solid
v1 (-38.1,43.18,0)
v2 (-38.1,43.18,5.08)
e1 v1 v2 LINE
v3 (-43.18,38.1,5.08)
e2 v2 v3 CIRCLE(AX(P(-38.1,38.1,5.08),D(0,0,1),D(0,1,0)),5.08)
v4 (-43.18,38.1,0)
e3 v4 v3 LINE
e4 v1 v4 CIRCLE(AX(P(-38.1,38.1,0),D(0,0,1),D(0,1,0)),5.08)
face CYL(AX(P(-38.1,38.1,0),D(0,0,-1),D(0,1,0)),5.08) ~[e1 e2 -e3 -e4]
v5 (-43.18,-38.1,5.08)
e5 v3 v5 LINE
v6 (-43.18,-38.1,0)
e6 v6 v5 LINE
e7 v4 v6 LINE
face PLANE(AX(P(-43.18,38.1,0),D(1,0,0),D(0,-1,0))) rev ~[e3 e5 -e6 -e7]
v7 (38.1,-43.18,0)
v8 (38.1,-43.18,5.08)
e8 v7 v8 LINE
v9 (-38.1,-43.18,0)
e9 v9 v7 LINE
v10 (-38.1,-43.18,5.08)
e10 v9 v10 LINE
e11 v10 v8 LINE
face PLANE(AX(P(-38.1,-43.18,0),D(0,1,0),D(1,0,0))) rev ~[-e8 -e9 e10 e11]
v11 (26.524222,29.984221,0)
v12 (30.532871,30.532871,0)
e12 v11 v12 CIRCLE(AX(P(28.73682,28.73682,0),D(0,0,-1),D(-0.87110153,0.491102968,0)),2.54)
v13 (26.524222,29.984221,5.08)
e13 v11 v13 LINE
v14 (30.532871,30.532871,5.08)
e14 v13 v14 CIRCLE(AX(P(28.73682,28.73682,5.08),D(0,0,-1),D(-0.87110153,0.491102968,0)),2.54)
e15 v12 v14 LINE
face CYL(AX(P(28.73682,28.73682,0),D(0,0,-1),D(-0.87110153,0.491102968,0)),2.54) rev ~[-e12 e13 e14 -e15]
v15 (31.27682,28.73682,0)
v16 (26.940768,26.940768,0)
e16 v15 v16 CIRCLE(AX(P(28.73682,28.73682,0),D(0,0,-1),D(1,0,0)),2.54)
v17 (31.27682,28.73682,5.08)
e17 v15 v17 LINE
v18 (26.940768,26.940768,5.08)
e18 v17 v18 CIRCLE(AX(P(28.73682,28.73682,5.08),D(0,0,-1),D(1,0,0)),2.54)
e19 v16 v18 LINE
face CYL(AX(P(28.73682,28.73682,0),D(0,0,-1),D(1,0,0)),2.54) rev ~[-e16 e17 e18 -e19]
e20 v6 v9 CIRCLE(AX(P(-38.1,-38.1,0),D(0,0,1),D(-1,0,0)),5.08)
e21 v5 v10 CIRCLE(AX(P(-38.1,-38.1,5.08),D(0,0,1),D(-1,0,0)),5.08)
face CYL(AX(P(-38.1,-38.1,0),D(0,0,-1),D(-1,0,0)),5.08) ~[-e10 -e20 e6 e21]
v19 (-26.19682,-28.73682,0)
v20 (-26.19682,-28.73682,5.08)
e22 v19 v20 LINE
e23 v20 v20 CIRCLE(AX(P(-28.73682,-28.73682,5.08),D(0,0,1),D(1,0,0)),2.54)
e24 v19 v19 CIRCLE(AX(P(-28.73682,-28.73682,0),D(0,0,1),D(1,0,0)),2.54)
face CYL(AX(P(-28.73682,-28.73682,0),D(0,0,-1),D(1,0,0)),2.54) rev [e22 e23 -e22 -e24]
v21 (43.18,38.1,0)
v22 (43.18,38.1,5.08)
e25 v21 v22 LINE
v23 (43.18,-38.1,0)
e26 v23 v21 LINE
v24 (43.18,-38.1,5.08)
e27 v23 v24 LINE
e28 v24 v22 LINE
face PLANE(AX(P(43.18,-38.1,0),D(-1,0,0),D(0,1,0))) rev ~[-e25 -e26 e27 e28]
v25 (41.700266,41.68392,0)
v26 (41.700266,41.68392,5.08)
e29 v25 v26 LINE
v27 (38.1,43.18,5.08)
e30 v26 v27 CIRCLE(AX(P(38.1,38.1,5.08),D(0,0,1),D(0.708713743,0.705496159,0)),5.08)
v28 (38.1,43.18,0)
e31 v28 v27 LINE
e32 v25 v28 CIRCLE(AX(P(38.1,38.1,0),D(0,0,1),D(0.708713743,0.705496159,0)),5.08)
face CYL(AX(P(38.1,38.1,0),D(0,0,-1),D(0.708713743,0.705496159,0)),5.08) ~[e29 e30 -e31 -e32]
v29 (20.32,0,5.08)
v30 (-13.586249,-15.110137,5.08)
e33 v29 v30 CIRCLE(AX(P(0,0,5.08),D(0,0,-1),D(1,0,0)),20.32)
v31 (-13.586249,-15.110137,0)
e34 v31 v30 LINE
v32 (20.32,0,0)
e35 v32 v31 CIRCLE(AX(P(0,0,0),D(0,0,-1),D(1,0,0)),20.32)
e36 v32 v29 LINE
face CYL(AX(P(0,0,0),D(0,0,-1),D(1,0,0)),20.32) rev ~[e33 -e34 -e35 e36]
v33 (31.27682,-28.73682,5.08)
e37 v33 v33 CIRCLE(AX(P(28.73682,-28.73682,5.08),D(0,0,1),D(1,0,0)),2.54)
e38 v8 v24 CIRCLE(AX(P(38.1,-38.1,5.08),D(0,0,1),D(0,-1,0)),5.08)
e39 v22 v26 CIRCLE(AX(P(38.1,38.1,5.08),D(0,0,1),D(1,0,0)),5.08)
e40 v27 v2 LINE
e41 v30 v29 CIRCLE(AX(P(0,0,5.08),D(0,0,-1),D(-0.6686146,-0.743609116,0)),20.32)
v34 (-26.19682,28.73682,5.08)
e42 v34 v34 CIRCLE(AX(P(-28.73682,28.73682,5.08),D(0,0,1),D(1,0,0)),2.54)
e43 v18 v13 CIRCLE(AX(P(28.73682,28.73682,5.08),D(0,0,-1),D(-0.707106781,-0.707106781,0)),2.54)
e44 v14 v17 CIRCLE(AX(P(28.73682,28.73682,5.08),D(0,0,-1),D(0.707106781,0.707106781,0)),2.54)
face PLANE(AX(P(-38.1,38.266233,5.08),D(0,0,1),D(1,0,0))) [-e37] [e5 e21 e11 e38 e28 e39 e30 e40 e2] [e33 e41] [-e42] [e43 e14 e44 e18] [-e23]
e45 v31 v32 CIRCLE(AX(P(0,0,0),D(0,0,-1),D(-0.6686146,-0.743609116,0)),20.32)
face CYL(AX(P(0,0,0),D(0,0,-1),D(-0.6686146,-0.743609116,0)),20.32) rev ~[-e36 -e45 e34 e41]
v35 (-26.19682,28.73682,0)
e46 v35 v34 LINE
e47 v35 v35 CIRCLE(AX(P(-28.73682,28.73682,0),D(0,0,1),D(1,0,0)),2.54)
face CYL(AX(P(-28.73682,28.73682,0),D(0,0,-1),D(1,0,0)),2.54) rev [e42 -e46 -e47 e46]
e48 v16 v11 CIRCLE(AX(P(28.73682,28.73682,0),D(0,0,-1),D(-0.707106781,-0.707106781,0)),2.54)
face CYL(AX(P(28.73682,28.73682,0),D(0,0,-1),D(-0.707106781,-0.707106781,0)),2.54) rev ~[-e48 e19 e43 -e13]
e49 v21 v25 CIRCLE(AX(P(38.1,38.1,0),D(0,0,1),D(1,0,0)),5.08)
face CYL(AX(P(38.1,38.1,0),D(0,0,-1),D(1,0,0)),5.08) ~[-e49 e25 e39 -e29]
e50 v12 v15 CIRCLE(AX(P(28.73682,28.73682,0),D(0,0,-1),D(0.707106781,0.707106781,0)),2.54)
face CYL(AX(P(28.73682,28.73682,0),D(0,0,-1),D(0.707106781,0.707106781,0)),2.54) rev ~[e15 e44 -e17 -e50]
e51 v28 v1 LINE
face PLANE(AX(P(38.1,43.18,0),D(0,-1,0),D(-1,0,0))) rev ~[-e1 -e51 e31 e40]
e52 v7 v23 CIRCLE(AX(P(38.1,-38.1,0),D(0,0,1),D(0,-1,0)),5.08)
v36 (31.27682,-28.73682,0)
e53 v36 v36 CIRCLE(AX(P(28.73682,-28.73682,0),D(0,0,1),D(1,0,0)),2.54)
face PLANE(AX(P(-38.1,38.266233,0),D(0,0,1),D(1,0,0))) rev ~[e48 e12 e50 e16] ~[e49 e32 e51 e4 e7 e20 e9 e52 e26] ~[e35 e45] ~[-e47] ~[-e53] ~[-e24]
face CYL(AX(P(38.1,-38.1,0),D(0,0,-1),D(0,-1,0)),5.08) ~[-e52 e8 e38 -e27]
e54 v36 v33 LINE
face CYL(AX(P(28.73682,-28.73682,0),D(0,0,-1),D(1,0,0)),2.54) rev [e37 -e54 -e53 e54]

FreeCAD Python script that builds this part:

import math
import FreeCAD as App
import Part
import Sketcher

V = App.Vector
Q = App.Units.Quantity

doc = App.newDocument("Part")
body = doc.addObject("PartDesign::Body", "Body")

# Sketch on XY plane
sketch1 = body.newObject("Sketcher::SketchObject", "Sketch")
sketch1.AttachmentSupport = (doc.getObject("XY_Plane"), [""])
sketch1.MapMode = "FlatFace"
sketch1.addGeometry([
    Part.ArcOfCircle(Part.Circle(V(-38.1, 38.1, 0), V(0, 0, 1), 5.1), math.radians(90), math.radians(180)),  # 0
    Part.LineSegment(V(-43.2, 38.1, 0), V(-43.2, -38.1, 0)),  # 1
    Part.ArcOfCircle(Part.Circle(V(-38.1, -38.1, 0), V(0, 0, 1), 5.1), math.radians(180), math.radians(270)),  # 2
    Part.LineSegment(V(-38.1, -43.2, 0), V(38.1, -43.2, 0)),  # 3
    Part.ArcOfCircle(Part.Circle(V(38.1, -38.1, 0), V(0, 0, 1), 5.1), math.radians(-90), math.radians(0)),  # 4
    Part.LineSegment(V(43.2, -38.1, 0), V(43.2, 38.1, 0)),  # 5
    Part.ArcOfCircle(Part.Circle(V(38.1, 38.1, 0), V(0, 0, 1), 5.1), math.radians(0), math.radians(45)),  # 6
    Part.ArcOfCircle(Part.Circle(V(38.1, 38.1, 0), V(0, 0, 1), 5.1), math.radians(45), math.radians(90)),  # 7
    Part.LineSegment(V(38.1, 43.2, 0), V(-38.1, 43.2, 0)),  # 8
    Part.Circle(V(-28.7, -28.7, 0), V(0, 0, 1), 2.5),  # 9
    Part.Circle(V(28.7, -28.7, 0), V(0, 0, 1), 2.5),  # 10
    Part.Circle(V(-28.7, 28.7, 0), V(0, 0, 1), 2.5),  # 11
    Part.ArcOfCircle(Part.Circle(V(0, 0, 0), V(0, 0, 1), 20.3), math.radians(-132), math.radians(0)),  # 12
    Part.ArcOfCircle(Part.Circle(V(0, 0, 0), V(0, 0, 1), 20.3), math.radians(0), math.radians(228)),  # 13
    Part.ArcOfCircle(Part.Circle(V(28.7, 28.7, 0), V(0, 0, 1), 2.5), math.radians(0), math.radians(45)),  # 14
    Part.ArcOfCircle(Part.Circle(V(28.7, 28.7, 0), V(0, 0, 1), 2.5), math.radians(-135), math.radians(0)),  # 15
    Part.ArcOfCircle(Part.Circle(V(28.7, 28.7, 0), V(0, 0, 1), 2.5), math.radians(151), math.radians(225)),  # 16
    Part.ArcOfCircle(Part.Circle(V(28.7, 28.7, 0), V(0, 0, 1), 2.5), math.radians(45), math.radians(151)),  # 17
], False)
sketch1.addConstraint([
    Sketcher.Constraint("Tangent", 0, 2, 1, 1),
    Sketcher.Constraint("Tangent", 1, 2, 2, 1),
    Sketcher.Constraint("Tangent", 2, 2, 3, 1),
    Sketcher.Constraint("Tangent", 3, 2, 4, 1),
    Sketcher.Constraint("Tangent", 4, 2, 5, 1),
    Sketcher.Constraint("Tangent", 5, 2, 6, 1),
    Sketcher.Constraint("Tangent", 6, 2, 7, 1),
    Sketcher.Constraint("Tangent", 7, 2, 8, 1),
    Sketcher.Constraint("Tangent", 8, 2, 0, 1),
    Sketcher.Constraint("Tangent", 12, 1, 13, 2),
    Sketcher.Constraint("Coincident", 13, 1, 12, 2),
    Sketcher.Constraint("Tangent", 14, 1, 15, 2),
    Sketcher.Constraint("Tangent", 15, 1, 16, 2),
    Sketcher.Constraint("Tangent", 16, 1, 17, 2),
    Sketcher.Constraint("Tangent", 17, 1, 14, 2),
    Sketcher.Constraint("Vertical", 1),
    Sketcher.Constraint("Horizontal", 3),
    Sketcher.Constraint("Vertical", 5),
    Sketcher.Constraint("Horizontal", 8),
    Sketcher.Constraint("Coincident", 12, 3, -1, 1),
    Sketcher.Constraint("Equal", 0, 2),
    Sketcher.Constraint("Equal", 2, 4),
    Sketcher.Constraint("Equal", 4, 6),
    Sketcher.Constraint("Equal", 6, 7),
    Sketcher.Constraint("Equal", 9, 10),
    Sketcher.Constraint("Equal", 10, 11),
    Sketcher.Constraint("Equal", 11, 14),
    Sketcher.Constraint("Equal", 14, 15),
    Sketcher.Constraint("Symmetric", 0, 3, 4, 3, -1, 1),
    Sketcher.Constraint("Symmetric", 10, 3, 11, 3, -1, 1),
    Sketcher.Constraint("Symmetric", 9, 3, 14, 3, -1, 1),
    Sketcher.Constraint("Symmetric", 9, 3, 10, 3, -2),
    Sketcher.Constraint("PointOnObject", 13, 1, -1),
    Sketcher.Constraint("Horizontal", 17, 3, 14, 1),
    Sketcher.Constraint("Equal", 8, 1),
    Sketcher.Constraint("Diameter", 9, Q("0.2 in")),
    Sketcher.Constraint("Radius", 0, Q("0.2 in")),
    Sketcher.Constraint("Radius", 12, Q("0.8 in")),
    Sketcher.Constraint("DistanceX", 3, 1, 3, 2, Q("3 in")),
    Sketcher.Constraint("DistanceY", 14, 3, 6, 2, Q("12.947101 mm")),
    Sketcher.Constraint("DistanceY", 15, 3, 16, 1, Q("1.247402 mm")),
    Sketcher.Constraint("DistanceX", 9, 3, -1, 1, Q("28.73682 mm")),
    Sketcher.Constraint("DistanceY", 9, 3, -1, 1, Q("28.73682 mm")),
    Sketcher.Constraint("DistanceX", 12, 1, -1, 1, Q("13.586249 mm")),
    Sketcher.Constraint("DistanceX", -1, 1, 15, 1, Q("26.940768 mm")),
    Sketcher.Constraint("DistanceX", -1, 1, 17, 1, Q("30.532871 mm")),
])
pad1 = body.newObject("PartDesign::Pad", "Pad")
pad1.Profile = sketch1
pad1.Length = Q("0.2 in")

doc.recompute()
